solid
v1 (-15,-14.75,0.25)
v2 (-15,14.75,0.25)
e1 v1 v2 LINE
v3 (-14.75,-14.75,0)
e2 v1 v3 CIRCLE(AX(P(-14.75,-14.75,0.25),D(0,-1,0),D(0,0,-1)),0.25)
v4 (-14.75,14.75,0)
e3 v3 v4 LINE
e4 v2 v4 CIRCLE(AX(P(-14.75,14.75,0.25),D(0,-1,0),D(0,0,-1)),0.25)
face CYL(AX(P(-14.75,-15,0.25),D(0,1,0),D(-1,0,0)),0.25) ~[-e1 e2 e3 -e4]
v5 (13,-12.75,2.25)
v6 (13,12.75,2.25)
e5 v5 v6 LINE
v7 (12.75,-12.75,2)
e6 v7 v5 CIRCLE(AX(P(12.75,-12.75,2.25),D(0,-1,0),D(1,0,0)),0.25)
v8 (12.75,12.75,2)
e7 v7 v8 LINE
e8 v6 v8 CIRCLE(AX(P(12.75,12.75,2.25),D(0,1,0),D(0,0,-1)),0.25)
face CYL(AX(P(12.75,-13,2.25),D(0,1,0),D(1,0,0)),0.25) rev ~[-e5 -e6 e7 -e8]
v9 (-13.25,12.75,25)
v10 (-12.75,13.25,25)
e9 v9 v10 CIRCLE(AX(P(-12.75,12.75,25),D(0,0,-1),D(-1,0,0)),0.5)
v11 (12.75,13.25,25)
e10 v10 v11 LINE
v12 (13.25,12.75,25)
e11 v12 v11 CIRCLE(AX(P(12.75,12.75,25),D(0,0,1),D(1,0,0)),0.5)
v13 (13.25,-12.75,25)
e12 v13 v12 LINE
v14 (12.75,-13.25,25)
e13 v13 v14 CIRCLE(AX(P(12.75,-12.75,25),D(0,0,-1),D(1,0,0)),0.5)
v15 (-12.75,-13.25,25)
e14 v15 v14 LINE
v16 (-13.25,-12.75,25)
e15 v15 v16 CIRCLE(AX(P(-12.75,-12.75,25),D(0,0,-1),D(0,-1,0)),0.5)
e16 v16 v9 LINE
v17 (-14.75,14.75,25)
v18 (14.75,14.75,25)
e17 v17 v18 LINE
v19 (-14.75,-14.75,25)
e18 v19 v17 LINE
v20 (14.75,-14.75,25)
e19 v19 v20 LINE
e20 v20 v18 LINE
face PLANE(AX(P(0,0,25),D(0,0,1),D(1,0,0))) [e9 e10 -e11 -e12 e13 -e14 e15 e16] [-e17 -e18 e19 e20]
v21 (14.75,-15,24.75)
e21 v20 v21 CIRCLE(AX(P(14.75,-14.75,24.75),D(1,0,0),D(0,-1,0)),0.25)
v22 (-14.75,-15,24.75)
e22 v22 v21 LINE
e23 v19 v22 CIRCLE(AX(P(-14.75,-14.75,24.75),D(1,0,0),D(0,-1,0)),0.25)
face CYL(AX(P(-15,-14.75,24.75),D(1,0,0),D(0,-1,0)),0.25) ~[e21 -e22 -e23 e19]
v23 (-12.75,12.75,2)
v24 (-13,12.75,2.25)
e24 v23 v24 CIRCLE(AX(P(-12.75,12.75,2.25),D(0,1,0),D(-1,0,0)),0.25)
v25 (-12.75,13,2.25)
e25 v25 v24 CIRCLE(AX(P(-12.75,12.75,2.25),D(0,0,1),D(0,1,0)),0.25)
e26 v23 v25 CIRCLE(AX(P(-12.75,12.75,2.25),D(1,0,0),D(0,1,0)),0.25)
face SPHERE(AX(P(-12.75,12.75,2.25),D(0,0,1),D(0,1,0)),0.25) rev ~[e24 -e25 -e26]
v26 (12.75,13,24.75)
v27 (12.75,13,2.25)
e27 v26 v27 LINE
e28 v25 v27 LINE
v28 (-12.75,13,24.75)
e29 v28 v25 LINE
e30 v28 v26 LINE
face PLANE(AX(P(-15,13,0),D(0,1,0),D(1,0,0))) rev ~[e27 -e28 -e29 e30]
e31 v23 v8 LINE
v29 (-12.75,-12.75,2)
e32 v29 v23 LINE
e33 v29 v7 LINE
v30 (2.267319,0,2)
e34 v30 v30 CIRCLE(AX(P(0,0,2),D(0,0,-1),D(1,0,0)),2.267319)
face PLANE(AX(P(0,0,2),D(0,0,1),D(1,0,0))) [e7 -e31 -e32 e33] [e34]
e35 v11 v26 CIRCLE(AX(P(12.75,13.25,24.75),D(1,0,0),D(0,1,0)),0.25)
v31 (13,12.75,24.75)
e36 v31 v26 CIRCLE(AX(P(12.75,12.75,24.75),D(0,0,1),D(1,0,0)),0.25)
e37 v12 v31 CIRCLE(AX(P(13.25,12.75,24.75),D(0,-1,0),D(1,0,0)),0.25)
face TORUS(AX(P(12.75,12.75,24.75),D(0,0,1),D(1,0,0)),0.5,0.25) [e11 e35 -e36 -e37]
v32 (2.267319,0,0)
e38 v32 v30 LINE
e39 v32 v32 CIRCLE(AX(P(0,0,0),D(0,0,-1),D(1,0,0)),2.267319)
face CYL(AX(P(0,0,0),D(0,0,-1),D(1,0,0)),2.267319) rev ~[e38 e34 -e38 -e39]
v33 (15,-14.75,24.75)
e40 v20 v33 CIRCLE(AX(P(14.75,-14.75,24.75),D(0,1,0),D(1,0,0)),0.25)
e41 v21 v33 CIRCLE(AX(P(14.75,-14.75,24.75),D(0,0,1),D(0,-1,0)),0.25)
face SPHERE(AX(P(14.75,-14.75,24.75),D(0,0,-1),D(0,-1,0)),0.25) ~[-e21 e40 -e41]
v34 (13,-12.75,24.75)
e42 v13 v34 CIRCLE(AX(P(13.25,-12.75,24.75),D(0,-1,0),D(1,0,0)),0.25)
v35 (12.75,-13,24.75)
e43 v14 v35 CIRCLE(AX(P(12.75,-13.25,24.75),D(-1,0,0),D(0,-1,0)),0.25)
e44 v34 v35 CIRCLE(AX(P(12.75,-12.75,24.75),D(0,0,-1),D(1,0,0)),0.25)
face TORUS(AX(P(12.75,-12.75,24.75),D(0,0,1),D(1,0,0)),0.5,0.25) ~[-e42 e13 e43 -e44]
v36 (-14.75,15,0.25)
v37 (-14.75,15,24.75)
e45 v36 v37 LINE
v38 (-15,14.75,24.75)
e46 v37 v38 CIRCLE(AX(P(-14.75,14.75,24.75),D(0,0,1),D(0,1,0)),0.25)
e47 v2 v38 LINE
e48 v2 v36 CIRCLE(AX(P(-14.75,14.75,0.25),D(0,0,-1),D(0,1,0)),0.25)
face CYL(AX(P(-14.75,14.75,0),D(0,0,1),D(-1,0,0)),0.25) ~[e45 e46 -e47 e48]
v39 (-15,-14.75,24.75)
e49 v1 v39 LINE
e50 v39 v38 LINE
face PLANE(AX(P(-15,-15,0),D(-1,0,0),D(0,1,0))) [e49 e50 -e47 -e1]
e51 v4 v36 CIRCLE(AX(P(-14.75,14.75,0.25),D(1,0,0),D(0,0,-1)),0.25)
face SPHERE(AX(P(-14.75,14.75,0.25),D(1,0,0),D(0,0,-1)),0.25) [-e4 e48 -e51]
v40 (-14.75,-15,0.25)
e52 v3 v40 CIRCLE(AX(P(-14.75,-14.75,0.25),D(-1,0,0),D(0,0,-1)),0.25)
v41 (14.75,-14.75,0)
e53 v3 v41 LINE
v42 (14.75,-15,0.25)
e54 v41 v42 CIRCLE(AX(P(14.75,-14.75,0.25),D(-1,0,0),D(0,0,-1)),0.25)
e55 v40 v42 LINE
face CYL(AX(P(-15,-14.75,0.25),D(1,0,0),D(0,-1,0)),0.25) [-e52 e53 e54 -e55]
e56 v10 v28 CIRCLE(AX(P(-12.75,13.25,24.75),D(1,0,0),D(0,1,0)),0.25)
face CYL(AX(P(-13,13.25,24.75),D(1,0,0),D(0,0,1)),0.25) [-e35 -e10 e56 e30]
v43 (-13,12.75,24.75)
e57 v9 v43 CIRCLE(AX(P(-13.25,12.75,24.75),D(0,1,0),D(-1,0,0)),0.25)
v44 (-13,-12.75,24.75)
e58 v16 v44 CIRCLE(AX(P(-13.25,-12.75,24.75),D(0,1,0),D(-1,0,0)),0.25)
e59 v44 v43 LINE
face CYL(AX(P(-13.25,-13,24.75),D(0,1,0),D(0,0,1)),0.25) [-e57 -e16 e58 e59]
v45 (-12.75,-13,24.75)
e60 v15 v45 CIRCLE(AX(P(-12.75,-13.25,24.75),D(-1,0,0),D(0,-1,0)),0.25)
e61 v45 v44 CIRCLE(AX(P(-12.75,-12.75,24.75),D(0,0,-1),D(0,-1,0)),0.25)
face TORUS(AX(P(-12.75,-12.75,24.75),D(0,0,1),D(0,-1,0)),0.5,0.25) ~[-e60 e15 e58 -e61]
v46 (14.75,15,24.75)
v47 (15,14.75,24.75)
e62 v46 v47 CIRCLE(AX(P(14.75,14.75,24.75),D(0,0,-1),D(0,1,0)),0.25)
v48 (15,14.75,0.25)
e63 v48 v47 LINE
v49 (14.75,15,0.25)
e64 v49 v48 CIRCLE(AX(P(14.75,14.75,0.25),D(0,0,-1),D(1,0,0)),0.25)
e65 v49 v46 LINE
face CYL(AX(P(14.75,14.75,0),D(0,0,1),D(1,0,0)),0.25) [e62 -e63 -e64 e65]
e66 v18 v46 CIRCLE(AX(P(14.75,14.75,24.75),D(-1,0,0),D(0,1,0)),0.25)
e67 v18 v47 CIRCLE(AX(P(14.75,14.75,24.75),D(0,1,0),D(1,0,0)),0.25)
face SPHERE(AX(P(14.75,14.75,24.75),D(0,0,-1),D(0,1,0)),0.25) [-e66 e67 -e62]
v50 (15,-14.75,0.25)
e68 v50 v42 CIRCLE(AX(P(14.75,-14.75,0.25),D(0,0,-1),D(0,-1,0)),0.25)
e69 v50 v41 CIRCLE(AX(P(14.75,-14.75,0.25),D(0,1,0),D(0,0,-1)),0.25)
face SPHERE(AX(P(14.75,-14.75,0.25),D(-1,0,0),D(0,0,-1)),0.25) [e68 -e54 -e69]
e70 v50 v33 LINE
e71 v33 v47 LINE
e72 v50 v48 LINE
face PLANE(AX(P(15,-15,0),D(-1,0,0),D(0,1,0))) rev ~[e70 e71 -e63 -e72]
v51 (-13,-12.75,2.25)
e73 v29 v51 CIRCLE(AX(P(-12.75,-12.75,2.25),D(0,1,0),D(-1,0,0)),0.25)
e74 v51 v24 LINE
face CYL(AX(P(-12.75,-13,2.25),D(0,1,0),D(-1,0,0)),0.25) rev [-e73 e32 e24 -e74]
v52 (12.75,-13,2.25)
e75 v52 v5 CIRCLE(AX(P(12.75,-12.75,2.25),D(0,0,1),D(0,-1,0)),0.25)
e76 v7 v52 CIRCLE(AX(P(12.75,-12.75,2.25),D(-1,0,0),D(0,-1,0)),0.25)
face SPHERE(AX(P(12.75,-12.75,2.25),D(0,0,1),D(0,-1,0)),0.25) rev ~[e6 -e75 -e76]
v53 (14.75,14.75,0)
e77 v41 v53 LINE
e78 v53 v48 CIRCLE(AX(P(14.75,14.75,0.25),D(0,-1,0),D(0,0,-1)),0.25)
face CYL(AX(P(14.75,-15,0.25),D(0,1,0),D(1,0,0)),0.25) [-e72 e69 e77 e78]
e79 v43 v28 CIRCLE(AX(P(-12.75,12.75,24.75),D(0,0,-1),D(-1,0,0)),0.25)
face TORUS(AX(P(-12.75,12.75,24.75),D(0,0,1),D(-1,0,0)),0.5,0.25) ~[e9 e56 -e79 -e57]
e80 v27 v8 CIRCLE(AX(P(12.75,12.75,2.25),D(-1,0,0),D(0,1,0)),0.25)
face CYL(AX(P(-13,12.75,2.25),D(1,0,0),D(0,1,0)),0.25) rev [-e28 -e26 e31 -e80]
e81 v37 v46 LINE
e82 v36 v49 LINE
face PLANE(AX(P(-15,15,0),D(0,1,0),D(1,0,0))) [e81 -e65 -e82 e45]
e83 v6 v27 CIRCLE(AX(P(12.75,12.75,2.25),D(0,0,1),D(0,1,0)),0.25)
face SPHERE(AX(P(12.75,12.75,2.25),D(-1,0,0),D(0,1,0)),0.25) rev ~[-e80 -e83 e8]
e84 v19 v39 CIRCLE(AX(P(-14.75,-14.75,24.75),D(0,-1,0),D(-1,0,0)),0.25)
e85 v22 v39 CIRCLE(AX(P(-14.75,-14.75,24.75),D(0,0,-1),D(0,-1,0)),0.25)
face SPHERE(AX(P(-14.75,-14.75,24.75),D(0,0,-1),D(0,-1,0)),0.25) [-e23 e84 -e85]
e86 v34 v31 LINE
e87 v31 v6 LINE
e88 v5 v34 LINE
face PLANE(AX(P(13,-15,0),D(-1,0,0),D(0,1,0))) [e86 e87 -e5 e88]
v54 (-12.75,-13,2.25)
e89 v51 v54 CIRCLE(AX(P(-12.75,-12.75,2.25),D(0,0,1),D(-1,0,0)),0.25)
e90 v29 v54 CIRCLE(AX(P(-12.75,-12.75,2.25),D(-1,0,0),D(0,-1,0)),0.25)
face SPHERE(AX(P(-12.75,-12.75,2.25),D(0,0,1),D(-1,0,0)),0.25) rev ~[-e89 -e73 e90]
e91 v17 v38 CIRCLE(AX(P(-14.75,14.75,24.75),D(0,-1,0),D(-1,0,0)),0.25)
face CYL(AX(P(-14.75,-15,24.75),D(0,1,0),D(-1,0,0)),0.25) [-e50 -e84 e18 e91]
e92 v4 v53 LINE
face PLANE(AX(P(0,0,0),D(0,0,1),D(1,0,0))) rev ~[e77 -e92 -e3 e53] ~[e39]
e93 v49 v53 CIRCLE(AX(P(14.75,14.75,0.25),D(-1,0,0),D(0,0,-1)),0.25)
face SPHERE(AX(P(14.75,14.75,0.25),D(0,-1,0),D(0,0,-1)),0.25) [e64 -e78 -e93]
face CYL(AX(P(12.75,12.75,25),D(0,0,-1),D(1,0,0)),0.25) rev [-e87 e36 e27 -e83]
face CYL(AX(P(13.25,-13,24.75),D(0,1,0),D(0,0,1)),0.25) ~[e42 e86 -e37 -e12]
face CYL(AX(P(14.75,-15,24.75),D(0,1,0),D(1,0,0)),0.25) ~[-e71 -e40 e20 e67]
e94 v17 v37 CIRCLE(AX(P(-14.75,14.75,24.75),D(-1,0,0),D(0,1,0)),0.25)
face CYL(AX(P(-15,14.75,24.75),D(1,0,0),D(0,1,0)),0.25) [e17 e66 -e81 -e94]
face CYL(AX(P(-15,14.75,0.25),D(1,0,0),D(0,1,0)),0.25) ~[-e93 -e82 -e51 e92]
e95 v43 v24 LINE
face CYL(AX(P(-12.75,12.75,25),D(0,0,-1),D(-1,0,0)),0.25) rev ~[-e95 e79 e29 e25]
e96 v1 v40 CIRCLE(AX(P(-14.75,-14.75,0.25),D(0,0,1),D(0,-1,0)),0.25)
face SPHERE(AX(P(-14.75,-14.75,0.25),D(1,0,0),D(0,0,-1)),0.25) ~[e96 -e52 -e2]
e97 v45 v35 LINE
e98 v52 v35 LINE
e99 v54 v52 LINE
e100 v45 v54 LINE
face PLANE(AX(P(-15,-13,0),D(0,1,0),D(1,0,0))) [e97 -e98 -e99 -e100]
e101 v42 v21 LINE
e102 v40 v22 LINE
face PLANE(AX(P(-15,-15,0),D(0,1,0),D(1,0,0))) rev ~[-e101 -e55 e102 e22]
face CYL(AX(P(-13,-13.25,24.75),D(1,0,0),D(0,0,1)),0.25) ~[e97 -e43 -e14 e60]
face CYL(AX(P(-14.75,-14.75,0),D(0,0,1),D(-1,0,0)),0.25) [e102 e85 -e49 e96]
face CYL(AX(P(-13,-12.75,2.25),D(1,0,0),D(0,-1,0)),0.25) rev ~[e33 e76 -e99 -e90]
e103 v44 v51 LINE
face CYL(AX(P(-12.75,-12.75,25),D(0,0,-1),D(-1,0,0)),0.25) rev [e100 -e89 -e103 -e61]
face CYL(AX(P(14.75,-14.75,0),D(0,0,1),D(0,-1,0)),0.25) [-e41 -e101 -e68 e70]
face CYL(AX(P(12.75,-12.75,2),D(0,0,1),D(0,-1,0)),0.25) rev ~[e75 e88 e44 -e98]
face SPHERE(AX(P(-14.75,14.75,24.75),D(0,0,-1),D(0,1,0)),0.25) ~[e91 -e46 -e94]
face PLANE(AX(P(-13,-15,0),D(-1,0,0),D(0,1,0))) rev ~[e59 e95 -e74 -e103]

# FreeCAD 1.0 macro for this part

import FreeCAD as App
import Part
import Sketcher
from FreeCAD import Vector
Q = App.Units.Quantity


def faces_at(feature, points):
    """Names of the faces that lie closest to the given points."""
    faces = feature.Shape.Faces
    near = lambda p: min(range(len(faces)), key=lambda i: faces[i].distToShape(Part.Vertex(*p))[0])
    return sorted({f"Face{near(p) + 1}" for p in points})


def add_polygon(sketch, points):
    """Adds a closed chain of lines whose ends are joined by coincident constraints."""
    first, n = sketch.GeometryCount, len(points)
    for a, b in zip(points, points[1:] + points[:1]):
        sketch.addGeometry(Part.LineSegment(App.Vector(*a, 0), App.Vector(*b, 0)), False)
    for i in range(n):
        sketch.addConstraint(Sketcher.Constraint("Coincident", first + i, 2, first + (i + 1) % n, 1))

doc = App.newDocument("Part")
body = doc.addObject("PartDesign::Body", "Body")

# Sketch on XY plane
sketch1 = doc.addObject("Sketcher::SketchObject", "Sketch")
body.addObject(sketch1)
sketch1.AttachmentSupport = (doc.XY_Plane, [""])
sketch1.MapMode = "FlatFace"
add_polygon(sketch1, [(-15, 15), (-15, -15), (15, -15), (15, 15)])  # lines 0-3
sketch1.addConstraint(Sketcher.Constraint("Vertical", 0))
sketch1.addConstraint(Sketcher.Constraint("Horizontal", 1))
sketch1.addConstraint(Sketcher.Constraint("Vertical", 2))
sketch1.addConstraint(Sketcher.Constraint("Horizontal", 3))
sketch1.addConstraint(Sketcher.Constraint("Symmetric", 0, 2, 2, 2, -1, 1))
sketch1.addConstraint(Sketcher.Constraint("Equal", 3, 0))
sketch1.addConstraint(Sketcher.Constraint("DistanceX", 1, 1, 1, 2, Q("30 mm")))
pad1 = doc.addObject("PartDesign::Pad", "Pad")
body.addObject(pad1)
pad1.Profile = sketch1
pad1.Length = 25
doc.recompute()

thickness = doc.addObject("PartDesign::Thickness", "Thickness")
body.addObject(thickness)
thickness.Base = (pad1, faces_at(pad1, [(0, 0, 25)]))
thickness.Value = 2
thickness.Reversed = True
thickness.Join = "Arc"
doc.recompute()

fillet = doc.addObject("PartDesign::Fillet", "Fillet")
body.addObject(fillet)
fillet.Base = (thickness, ["Edge1"])
fillet.UseAllEdges = True
fillet.Radius = 0.25

# Sketch on XY plane
sketch2 = doc.addObject("Sketcher::SketchObject", "Sketch001")
body.addObject(sketch2)
sketch2.AttachmentSupport = (doc.XY_Plane, [""])
sketch2.MapMode = "FlatFace"
sketch2.addGeometry(Part.Circle(Vector(0, 0, 0), Vector(0, 0, 1), 2.3), False)
sketch2.addConstraint(Sketcher.Constraint("Coincident", 0, 3, -1, 1))
sketch2.addConstraint(Sketcher.Constraint("Diameter", 0, Q("4.534638 mm")))
pocket1 = doc.addObject("PartDesign::Pocket", "Pocket")
body.addObject(pocket1)
pocket1.Profile = sketch2
pocket1.Type = "ThroughAll"
pocket1.Reversed = True

doc.recompute()
